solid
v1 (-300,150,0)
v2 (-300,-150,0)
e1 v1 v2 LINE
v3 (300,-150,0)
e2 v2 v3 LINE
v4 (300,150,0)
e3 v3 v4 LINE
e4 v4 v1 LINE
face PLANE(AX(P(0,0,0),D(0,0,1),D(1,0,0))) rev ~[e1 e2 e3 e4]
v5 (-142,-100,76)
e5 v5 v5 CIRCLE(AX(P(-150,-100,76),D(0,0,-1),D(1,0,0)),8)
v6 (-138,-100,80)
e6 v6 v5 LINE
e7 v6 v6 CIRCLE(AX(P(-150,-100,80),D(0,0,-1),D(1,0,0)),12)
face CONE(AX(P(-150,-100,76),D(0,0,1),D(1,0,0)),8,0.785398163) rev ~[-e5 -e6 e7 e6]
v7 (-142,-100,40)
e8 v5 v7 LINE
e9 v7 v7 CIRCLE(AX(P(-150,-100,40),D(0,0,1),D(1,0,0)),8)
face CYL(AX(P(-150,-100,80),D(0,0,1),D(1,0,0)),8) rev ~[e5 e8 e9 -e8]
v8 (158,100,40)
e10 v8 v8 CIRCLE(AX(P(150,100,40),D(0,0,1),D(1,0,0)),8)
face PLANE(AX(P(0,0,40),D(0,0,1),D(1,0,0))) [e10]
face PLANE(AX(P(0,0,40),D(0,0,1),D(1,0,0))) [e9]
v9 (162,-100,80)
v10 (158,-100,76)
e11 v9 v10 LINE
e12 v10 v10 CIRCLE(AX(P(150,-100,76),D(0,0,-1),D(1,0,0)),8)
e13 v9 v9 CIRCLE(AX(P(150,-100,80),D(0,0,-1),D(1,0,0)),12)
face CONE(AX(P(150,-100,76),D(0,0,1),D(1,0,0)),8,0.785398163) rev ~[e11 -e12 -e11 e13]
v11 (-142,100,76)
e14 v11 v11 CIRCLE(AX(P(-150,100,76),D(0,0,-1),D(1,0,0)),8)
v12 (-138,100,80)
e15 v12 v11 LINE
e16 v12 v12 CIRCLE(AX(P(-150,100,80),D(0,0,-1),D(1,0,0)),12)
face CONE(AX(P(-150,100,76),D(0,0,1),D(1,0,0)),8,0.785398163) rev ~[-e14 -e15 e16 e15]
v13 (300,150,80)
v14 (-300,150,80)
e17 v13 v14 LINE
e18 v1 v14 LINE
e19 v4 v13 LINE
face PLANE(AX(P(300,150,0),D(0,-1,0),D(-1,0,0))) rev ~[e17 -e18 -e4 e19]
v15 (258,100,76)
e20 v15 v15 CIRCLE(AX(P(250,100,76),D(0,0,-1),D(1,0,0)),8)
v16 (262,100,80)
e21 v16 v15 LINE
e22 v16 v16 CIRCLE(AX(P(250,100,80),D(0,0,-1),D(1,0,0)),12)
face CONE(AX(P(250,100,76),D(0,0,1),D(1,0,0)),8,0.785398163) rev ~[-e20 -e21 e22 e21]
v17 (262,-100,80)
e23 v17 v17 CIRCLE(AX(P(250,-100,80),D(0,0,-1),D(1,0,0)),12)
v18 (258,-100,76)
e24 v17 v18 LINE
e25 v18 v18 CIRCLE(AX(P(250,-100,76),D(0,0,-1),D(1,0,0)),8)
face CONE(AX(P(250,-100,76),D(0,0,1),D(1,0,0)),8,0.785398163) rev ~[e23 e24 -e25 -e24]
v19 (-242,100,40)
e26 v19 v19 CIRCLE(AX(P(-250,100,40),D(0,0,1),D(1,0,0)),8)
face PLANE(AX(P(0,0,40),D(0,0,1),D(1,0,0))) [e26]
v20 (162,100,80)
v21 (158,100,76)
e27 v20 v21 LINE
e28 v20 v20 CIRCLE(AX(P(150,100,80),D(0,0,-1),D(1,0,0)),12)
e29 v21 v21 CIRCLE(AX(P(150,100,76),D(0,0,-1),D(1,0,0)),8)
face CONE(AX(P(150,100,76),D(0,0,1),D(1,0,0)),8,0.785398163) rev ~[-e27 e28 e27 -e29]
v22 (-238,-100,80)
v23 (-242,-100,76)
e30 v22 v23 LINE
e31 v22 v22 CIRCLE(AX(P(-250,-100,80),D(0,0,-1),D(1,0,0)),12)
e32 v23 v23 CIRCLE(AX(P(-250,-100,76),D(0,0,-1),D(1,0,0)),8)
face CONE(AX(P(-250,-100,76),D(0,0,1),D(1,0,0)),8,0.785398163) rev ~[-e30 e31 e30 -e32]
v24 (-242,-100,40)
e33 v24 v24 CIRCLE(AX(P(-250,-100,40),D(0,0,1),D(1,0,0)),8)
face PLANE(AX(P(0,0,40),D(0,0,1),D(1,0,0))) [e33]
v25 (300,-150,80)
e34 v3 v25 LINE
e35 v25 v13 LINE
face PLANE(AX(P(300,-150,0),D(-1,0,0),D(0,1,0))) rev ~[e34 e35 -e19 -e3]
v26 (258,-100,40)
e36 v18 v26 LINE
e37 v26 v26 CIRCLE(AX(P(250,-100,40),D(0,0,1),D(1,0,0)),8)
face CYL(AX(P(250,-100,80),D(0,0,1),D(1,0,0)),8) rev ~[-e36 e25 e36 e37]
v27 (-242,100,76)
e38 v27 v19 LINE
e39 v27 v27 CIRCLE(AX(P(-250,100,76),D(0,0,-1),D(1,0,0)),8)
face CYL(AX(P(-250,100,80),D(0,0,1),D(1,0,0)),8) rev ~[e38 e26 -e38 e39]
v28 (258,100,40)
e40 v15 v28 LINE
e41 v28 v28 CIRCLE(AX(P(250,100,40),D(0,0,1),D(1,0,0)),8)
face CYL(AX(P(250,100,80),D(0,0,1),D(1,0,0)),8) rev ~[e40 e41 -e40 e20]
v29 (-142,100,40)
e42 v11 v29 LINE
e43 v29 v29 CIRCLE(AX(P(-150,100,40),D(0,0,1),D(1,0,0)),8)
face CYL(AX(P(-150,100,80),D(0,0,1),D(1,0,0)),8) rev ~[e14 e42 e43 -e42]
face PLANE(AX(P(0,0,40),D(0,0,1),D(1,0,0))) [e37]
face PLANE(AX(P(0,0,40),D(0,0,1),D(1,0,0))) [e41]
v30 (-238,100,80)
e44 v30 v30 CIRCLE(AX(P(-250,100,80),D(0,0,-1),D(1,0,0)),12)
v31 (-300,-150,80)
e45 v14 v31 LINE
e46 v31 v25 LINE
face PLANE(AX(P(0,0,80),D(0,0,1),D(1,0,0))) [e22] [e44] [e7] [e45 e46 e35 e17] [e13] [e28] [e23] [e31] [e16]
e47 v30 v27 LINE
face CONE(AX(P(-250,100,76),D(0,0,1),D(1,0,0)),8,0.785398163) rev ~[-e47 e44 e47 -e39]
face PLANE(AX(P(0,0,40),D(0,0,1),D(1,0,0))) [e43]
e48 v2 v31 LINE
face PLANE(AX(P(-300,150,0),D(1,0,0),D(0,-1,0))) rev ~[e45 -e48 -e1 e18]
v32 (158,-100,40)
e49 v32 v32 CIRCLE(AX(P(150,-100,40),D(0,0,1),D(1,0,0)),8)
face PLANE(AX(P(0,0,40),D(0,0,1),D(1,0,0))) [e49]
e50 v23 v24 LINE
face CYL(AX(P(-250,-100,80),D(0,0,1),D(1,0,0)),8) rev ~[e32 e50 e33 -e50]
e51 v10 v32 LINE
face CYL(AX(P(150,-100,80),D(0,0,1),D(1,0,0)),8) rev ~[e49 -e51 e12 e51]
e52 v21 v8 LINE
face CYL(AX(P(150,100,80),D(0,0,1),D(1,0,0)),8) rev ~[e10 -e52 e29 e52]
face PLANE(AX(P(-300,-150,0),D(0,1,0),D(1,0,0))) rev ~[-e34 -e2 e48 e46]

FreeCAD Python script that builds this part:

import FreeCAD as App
import Part
import Sketcher

V = App.Vector


def edges_at(feature, points):
    """Names of the edges that pass closest to the given points."""
    edges = feature.Shape.Edges
    near = lambda p: min(range(len(edges)), key=lambda i: edges[i].distToShape(Part.Vertex(*p))[0])
    return sorted({f"Edge{near(p) + 1}" for p in points})


def add_polygon(sketch, points):
    """Adds a closed chain of lines whose ends are joined by coincident constraints."""
    first, n = sketch.GeometryCount, len(points)
    for a, b in zip(points, points[1:] + points[:1]):
        sketch.addGeometry(Part.LineSegment(App.Vector(*a, 0), App.Vector(*b, 0)), False)
    for i in range(n):
        sketch.addConstraint(Sketcher.Constraint("Coincident", first + i, 2, first + (i + 1) % n, 1))

doc = App.newDocument("Part")
body = doc.addObject("PartDesign::Body", "Body")

# Sketch on XY plane
sketch1 = body.newObject("Sketcher::SketchObject", "Sketch")
sketch1.AttachmentSupport = (doc.getObject("XY_Plane"), [""])
sketch1.MapMode = "FlatFace"
add_polygon(sketch1, [(-300, 150), (-300, -150), (300, -150), (300, 150)])  # lines 0-3
sketch1.addConstraint([
    Sketcher.Constraint("Vertical", 0),
    Sketcher.Constraint("Horizontal", 1),
    Sketcher.Constraint("Vertical", 2),
    Sketcher.Constraint("Horizontal", 3),
    Sketcher.Constraint("Symmetric", 0, 2, 2, 2, -1, 1),
    Sketcher.Constraint("DistanceX", 1, 1, 1, 2, 600.0),
    Sketcher.Constraint("DistanceY", 0, 2, 0, 1, 300.0),
])
pad1 = body.newObject("PartDesign::Pad", "Pad")
pad1.Profile = sketch1
pad1.Length = 80

# Sketch on XY plane
sketch2 = body.newObject("Sketcher::SketchObject", "Sketch001")
sketch2.AttachmentSupport = (doc.getObject("XY_Plane"), [""])
sketch2.MapMode = "FlatFace"
sketch2.AttachmentOffset = App.Placement(V(0, 0, 80), App.Rotation())
sketch2.addGeometry([
    Part.Circle(V(-250, -100, 0), V(0, 0, 1), 8),  # 0
    Part.Circle(V(-150, -100, 0), V(0, 0, 1), 8),  # 1
    Part.Circle(V(-250, 100, 0), V(0, 0, 1), 8),  # 2
    Part.Circle(V(-150, 100, 0), V(0, 0, 1), 8),  # 3
    Part.Circle(V(150, -100, 0), V(0, 0, 1), 8),  # 4
    Part.Circle(V(150, 100, 0), V(0, 0, 1), 8),  # 5
    Part.Circle(V(250, -100, 0), V(0, 0, 1), 8),  # 6
    Part.Circle(V(250, 100, 0), V(0, 0, 1), 8),  # 7
], False)
sketch2.addConstraint([
    Sketcher.Constraint("Equal", 0, 1),
    Sketcher.Constraint("Equal", 1, 2),
    Sketcher.Constraint("Equal", 2, 3),
    Sketcher.Constraint("Equal", 3, 4),
    Sketcher.Constraint("Equal", 4, 5),
    Sketcher.Constraint("Equal", 5, 6),
    Sketcher.Constraint("Equal", 6, 7),
    Sketcher.Constraint("Symmetric", 3, 3, 4, 3, -1, 1),
    Sketcher.Constraint("Symmetric", 1, 3, 5, 3, -1, 1),
    Sketcher.Constraint("Symmetric", 2, 3, 6, 3, -1, 1),
    Sketcher.Constraint("Symmetric", 0, 3, 7, 3, -1, 1),
    Sketcher.Constraint("Symmetric", 1, 3, 4, 3, -2),
    Sketcher.Constraint("Symmetric", 0, 3, 6, 3, -2),
    Sketcher.Constraint("Horizontal", 0, 3, 1, 3),
    Sketcher.Constraint("Diameter", 0, 16.0),
    Sketcher.Constraint("DistanceY", 0, 3, 2, 3, 200.0),
    Sketcher.Constraint("DistanceX", 1, 3, 4, 3, 300.0),
    Sketcher.Constraint("DistanceX", 0, 3, 6, 3, 500.0),
])
pocket1 = body.newObject("PartDesign::Pocket", "Pocket")
pocket1.Profile = sketch2
pocket1.Length = 40
doc.recompute()

chamfer = body.newObject("PartDesign::Chamfer", "Chamfer")
chamfer.Base = (pocket1, edges_at(pocket1, [
    (-258, 100, 80),
    (-158, 100, 80),
    (-258, -100, 80),
    (-158, -100, 80),
    (142, 100, 80),
    (142, -100, 80),
    (242, 100, 80),
    (242, -100, 80),
]))
chamfer.Size = 4

doc.recompute()
